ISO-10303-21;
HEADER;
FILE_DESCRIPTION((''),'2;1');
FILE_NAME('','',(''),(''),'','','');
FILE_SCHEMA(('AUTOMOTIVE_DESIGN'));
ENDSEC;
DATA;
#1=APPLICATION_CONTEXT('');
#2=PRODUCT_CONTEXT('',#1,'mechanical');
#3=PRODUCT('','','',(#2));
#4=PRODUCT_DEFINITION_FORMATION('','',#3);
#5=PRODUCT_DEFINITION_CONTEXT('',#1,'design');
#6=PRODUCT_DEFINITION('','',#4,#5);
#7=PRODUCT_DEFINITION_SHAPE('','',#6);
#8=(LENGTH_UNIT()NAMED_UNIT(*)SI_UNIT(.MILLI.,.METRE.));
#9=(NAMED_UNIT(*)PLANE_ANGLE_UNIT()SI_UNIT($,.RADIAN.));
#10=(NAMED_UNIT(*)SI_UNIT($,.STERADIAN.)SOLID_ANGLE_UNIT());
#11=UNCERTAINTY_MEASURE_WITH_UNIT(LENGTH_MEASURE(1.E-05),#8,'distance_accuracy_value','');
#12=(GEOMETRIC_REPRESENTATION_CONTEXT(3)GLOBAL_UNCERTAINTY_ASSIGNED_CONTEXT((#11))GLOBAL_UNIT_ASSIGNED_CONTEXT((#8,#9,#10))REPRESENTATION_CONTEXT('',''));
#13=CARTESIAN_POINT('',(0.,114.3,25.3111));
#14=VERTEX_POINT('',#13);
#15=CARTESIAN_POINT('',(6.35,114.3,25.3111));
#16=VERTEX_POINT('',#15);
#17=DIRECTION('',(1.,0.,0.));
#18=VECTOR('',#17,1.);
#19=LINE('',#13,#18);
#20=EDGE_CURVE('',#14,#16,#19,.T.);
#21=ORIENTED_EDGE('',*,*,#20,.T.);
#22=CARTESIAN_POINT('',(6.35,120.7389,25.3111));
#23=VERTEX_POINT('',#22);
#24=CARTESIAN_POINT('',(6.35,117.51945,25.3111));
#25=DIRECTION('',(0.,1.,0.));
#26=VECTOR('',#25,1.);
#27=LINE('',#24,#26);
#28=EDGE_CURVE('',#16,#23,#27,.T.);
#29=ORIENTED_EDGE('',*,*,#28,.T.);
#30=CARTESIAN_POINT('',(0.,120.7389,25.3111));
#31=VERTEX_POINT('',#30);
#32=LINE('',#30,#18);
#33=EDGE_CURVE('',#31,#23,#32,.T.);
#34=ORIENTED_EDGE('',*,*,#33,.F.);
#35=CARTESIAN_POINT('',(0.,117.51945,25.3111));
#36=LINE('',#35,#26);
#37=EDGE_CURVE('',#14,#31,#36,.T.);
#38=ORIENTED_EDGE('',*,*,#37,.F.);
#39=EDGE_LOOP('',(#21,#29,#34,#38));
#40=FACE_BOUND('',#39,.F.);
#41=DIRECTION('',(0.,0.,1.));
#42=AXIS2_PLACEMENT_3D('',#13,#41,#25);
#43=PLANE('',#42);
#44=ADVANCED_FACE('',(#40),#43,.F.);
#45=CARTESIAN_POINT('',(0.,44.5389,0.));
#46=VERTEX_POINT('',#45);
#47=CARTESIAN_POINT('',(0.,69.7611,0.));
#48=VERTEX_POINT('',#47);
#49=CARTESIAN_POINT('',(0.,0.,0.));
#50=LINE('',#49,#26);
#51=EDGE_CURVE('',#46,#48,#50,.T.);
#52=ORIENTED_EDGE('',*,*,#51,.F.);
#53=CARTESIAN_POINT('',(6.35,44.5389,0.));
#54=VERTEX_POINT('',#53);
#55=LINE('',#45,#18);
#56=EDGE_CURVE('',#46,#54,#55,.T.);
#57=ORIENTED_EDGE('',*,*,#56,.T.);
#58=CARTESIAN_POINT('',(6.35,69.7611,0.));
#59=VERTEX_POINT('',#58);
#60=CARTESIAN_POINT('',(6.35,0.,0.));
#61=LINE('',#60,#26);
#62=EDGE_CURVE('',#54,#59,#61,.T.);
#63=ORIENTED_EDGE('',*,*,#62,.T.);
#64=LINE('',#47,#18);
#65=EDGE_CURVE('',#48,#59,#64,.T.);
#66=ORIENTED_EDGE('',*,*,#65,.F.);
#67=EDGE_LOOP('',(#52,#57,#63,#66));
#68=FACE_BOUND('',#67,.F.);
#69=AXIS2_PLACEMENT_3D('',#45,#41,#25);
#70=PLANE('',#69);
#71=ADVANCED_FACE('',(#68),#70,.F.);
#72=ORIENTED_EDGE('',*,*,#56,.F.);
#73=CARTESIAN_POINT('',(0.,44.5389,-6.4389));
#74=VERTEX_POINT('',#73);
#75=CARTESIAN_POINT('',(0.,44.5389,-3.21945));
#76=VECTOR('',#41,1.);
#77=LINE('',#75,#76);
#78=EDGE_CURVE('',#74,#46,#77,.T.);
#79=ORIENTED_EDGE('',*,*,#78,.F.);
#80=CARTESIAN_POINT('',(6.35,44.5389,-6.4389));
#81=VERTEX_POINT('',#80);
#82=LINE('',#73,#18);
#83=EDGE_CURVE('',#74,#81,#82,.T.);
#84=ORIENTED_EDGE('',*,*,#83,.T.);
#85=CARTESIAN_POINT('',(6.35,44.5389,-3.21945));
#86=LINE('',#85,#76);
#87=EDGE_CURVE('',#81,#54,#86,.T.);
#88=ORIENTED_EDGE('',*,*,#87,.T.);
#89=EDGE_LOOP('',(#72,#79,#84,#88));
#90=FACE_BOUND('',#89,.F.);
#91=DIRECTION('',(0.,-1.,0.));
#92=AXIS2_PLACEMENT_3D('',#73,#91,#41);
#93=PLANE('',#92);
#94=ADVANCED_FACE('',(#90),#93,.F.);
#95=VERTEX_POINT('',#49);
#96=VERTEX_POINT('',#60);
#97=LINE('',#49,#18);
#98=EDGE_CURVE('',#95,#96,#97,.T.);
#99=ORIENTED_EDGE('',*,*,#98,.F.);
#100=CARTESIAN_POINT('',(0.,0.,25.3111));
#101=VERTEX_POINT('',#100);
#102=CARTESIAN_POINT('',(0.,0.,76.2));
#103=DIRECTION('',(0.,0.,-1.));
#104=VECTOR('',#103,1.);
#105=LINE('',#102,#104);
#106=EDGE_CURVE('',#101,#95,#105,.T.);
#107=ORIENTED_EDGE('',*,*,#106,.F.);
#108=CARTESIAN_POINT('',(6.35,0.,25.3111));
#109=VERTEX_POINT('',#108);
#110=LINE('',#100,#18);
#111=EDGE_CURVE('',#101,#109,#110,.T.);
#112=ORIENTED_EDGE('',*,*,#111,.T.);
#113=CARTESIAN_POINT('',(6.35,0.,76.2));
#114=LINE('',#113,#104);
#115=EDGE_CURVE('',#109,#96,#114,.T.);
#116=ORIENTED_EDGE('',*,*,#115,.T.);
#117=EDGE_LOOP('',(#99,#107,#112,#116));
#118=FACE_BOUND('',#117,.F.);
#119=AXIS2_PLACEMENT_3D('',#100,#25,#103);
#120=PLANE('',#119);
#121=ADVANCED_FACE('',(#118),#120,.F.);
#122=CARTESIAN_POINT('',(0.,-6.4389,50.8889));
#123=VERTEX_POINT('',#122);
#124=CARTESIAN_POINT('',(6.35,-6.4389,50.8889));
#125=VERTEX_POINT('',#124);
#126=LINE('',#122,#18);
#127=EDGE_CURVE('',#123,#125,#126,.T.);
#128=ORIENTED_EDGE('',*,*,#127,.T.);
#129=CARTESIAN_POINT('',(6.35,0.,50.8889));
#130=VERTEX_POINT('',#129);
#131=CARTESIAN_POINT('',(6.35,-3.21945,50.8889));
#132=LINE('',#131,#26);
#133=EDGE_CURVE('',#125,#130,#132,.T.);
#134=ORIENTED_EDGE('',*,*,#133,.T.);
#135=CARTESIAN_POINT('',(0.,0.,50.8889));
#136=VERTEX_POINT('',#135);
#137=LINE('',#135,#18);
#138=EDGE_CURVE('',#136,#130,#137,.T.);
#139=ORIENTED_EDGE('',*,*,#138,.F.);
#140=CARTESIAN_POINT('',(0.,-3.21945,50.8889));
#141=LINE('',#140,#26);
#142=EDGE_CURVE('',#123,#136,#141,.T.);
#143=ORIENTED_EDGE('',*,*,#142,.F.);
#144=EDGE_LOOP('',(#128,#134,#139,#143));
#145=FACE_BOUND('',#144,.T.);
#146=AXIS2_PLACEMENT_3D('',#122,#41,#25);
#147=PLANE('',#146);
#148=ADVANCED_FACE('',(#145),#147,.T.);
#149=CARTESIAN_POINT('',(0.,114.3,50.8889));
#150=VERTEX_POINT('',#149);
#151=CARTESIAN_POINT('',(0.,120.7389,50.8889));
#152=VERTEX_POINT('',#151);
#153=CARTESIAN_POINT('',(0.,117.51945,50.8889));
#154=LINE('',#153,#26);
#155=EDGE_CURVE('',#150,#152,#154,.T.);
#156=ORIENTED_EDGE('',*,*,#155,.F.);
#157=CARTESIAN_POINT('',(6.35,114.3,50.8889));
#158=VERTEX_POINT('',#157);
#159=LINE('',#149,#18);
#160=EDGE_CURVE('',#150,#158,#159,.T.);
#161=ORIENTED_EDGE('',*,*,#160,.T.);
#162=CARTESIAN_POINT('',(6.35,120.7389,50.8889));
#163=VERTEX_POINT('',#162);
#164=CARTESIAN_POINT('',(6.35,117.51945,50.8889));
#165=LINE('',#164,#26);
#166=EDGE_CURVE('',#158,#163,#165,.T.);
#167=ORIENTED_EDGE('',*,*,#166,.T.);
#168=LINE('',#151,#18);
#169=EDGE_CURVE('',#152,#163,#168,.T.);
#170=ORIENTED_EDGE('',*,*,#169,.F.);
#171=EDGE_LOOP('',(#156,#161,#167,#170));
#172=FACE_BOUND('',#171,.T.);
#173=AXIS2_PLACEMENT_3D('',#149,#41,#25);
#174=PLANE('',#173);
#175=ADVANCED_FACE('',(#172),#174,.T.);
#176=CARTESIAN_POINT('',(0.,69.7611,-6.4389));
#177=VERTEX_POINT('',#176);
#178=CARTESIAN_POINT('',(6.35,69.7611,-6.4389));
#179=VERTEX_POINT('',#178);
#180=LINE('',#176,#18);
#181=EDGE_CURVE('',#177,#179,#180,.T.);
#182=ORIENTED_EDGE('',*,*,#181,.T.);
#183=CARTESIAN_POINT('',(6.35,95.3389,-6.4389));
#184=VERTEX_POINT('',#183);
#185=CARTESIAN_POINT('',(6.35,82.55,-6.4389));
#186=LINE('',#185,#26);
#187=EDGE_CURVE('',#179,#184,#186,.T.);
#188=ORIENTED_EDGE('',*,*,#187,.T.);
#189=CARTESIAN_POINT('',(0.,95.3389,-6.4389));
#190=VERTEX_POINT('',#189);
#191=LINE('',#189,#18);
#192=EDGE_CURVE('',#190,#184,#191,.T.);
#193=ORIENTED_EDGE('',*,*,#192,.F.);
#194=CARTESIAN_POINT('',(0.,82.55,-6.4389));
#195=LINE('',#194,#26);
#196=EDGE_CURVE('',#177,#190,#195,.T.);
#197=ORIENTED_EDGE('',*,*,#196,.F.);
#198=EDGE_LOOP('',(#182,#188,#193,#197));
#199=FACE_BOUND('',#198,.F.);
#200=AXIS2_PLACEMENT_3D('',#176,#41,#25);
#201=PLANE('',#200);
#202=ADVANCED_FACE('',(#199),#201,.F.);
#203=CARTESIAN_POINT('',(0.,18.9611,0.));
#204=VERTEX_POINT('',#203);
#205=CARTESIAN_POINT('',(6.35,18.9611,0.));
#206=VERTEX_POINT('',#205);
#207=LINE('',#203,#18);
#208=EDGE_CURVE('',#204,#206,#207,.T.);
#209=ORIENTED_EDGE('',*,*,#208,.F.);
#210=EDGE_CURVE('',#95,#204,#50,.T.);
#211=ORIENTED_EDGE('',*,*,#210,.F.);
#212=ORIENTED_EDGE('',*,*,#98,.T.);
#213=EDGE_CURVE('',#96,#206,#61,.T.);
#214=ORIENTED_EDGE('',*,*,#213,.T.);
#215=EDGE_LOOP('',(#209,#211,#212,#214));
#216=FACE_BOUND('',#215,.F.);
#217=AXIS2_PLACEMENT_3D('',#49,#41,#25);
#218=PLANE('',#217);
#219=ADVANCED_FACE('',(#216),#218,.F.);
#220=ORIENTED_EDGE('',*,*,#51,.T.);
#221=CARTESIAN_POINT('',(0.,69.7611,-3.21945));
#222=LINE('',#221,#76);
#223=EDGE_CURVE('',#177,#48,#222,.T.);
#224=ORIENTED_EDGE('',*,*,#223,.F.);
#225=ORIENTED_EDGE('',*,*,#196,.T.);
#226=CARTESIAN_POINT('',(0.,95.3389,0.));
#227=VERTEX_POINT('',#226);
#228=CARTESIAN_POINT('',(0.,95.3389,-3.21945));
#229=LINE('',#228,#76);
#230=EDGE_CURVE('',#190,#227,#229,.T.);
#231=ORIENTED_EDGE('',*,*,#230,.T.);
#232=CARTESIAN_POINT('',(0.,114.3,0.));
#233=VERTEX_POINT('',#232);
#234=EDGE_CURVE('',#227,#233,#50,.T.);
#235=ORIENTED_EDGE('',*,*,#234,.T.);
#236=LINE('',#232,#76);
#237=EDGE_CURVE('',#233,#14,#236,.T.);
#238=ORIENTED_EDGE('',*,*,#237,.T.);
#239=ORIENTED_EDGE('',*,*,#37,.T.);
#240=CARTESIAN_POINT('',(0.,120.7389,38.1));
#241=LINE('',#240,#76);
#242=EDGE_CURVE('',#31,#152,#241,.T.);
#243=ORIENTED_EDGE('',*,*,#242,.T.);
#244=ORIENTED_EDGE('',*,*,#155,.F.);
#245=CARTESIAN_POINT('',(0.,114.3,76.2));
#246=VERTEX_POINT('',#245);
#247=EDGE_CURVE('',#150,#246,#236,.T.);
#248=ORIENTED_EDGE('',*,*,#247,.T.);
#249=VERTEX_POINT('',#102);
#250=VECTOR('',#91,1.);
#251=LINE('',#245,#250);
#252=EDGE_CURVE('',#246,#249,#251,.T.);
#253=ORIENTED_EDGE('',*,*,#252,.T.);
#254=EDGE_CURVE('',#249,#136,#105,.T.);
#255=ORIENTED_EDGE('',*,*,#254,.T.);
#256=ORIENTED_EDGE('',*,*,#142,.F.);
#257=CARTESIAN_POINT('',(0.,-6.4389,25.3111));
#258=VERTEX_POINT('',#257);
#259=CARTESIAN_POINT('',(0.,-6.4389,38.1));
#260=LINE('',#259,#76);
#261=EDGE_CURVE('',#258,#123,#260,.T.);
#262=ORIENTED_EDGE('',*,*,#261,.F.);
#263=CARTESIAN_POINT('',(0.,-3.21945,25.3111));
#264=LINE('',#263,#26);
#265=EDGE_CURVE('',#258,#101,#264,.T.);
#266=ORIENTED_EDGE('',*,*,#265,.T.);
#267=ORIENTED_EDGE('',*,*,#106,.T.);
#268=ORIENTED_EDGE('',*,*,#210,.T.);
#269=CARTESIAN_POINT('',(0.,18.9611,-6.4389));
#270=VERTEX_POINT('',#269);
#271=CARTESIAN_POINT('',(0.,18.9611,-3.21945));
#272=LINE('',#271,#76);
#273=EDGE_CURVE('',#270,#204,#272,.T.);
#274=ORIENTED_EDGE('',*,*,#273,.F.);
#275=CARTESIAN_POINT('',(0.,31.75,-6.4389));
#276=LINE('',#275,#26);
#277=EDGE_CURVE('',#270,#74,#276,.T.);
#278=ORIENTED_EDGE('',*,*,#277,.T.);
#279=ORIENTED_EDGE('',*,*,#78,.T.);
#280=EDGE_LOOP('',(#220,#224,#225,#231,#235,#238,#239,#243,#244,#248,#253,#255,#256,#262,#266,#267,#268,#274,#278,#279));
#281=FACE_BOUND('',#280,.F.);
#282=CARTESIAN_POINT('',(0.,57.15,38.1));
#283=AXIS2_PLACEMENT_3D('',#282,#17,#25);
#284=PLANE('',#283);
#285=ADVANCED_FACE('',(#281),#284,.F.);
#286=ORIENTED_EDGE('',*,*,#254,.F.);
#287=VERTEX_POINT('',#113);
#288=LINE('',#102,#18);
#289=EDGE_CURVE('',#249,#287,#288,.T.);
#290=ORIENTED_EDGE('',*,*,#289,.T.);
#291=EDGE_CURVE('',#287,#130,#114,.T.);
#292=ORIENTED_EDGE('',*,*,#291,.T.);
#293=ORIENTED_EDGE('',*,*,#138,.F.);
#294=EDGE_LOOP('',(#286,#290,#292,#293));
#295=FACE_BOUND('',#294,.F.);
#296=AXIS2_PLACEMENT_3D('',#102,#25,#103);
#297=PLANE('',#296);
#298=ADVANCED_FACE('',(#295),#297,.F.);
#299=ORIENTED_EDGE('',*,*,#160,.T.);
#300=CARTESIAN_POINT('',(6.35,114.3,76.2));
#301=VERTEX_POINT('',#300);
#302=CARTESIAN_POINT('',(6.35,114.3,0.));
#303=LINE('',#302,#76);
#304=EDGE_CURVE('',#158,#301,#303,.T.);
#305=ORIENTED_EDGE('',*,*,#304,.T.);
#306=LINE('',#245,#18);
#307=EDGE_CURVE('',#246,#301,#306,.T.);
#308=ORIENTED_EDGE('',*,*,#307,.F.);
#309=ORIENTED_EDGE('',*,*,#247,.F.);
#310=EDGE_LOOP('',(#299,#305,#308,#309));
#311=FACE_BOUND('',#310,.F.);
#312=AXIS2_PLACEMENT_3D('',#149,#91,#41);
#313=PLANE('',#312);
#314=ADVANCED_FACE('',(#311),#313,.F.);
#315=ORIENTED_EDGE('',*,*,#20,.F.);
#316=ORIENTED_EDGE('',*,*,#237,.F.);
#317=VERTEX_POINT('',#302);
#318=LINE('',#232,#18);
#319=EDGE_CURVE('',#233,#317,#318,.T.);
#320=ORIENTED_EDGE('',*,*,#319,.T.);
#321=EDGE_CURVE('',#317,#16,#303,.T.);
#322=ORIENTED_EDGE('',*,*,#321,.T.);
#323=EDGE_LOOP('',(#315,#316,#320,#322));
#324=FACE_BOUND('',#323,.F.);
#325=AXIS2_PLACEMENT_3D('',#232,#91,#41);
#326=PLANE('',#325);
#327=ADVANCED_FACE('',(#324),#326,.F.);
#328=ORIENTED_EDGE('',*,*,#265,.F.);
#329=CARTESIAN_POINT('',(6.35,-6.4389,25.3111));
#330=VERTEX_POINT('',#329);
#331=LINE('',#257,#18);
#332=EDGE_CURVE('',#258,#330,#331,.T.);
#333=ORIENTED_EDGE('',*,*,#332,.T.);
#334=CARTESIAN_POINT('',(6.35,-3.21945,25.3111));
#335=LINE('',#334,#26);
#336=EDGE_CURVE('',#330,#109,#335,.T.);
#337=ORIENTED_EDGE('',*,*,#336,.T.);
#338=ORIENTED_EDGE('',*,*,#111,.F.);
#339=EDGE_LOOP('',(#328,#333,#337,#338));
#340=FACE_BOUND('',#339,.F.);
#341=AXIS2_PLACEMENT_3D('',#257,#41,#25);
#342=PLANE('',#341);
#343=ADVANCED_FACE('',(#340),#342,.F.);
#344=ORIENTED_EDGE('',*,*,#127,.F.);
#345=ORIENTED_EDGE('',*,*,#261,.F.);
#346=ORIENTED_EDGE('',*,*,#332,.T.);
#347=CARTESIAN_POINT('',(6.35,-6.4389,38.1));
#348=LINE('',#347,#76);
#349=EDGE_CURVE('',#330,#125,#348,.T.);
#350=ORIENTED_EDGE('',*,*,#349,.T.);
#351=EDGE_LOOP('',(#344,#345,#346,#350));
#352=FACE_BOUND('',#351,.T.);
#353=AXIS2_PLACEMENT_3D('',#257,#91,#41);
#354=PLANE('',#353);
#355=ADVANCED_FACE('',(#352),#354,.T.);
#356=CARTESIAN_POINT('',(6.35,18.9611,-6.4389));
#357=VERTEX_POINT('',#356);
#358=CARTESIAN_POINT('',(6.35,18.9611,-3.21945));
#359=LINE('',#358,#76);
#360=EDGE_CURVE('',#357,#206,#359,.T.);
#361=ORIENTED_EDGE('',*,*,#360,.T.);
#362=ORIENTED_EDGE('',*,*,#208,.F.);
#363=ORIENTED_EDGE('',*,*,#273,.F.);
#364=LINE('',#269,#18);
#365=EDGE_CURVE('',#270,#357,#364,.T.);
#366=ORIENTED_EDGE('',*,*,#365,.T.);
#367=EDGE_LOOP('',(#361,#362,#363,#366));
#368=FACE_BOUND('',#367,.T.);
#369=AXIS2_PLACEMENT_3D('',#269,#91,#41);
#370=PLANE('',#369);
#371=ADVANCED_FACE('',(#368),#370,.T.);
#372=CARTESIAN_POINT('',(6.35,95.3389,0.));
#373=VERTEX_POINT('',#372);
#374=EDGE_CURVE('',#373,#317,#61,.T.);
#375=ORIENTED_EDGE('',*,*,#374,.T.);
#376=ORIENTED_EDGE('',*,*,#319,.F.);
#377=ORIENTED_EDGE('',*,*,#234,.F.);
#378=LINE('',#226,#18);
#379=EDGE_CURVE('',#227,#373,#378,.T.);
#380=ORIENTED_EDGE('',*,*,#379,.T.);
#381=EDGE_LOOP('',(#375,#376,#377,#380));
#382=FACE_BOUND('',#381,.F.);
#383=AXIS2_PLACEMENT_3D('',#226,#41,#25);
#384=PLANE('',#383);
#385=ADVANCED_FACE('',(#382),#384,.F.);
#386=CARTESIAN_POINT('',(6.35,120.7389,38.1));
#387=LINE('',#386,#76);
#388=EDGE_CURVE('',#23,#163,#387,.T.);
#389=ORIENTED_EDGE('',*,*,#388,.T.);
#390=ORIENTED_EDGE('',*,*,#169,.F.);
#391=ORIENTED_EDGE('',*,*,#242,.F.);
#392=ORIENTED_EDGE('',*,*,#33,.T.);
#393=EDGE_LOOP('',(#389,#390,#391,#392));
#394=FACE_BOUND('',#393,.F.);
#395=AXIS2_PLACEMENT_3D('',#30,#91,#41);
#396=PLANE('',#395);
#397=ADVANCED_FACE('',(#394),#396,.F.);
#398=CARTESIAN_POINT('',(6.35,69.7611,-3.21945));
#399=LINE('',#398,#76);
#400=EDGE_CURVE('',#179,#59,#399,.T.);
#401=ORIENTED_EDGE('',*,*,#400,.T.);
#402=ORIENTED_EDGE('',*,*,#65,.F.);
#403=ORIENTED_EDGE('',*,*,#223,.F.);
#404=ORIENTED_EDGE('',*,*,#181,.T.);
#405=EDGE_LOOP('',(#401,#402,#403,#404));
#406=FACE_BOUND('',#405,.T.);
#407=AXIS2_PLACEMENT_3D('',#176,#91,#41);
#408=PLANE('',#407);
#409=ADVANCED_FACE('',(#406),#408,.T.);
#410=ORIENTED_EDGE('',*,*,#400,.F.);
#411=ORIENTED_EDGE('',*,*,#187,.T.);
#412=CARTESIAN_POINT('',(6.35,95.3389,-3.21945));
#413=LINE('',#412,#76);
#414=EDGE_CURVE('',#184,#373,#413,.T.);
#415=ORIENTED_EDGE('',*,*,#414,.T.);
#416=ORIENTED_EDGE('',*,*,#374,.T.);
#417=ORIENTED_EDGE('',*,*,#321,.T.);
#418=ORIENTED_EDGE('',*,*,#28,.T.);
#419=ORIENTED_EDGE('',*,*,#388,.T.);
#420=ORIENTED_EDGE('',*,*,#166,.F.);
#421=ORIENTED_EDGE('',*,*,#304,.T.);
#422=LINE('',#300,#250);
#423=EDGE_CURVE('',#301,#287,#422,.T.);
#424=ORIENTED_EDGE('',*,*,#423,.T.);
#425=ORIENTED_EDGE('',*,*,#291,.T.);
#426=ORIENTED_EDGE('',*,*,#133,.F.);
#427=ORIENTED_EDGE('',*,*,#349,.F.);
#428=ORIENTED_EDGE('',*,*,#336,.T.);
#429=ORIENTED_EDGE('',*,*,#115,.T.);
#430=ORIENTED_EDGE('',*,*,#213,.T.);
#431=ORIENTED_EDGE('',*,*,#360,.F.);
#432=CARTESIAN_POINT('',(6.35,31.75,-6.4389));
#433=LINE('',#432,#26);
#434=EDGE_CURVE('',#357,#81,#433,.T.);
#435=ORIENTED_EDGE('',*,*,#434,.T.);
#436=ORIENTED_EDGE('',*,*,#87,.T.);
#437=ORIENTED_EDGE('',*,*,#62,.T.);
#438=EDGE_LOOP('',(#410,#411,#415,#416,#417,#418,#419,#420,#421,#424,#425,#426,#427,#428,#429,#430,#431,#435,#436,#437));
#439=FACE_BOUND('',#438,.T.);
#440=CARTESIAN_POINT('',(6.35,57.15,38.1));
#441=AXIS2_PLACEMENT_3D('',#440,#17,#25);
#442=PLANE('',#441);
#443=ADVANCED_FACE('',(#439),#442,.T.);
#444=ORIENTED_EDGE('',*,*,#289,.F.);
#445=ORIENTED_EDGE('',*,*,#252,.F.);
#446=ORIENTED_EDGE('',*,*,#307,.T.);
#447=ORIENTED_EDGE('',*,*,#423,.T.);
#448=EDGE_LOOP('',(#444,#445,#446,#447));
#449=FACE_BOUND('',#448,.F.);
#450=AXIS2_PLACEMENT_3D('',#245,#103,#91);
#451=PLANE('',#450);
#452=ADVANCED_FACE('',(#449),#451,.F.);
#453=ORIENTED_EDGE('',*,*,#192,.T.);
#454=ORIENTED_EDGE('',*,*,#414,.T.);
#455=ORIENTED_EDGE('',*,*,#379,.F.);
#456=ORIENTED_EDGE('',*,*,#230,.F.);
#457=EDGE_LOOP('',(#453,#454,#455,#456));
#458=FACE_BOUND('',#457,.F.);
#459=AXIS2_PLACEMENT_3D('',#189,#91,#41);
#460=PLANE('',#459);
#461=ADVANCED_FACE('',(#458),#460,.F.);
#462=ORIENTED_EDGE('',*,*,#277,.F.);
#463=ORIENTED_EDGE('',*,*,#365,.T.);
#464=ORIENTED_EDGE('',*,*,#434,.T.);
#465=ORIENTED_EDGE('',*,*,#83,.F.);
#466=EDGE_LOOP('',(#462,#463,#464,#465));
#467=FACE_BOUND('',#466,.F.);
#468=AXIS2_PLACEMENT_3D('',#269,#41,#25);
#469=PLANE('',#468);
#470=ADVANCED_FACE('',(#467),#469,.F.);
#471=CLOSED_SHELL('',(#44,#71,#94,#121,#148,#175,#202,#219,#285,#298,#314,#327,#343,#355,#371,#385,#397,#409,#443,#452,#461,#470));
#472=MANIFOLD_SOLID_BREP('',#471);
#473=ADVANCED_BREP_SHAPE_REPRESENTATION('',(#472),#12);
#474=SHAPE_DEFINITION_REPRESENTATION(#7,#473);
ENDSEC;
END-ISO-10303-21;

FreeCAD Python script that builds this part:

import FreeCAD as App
import Part
import Sketcher

V = App.Vector
Q = App.Units.Quantity


def add_polygon(sketch, points):
    """Adds a closed chain of lines whose ends are joined by coincident constraints."""
    first, n = sketch.GeometryCount, len(points)
    for a, b in zip(points, points[1:] + points[:1]):
        sketch.addGeometry(Part.LineSegment(App.Vector(*a, 0), App.Vector(*b, 0)), False)
    for i in range(n):
        sketch.addConstraint(Sketcher.Constraint("Coincident", first + i, 2, first + (i + 1) % n, 1))

doc = App.newDocument("Part")
params = doc.addObject("Spreadsheet::Sheet", "Params")
for row, (alias, value) in enumerate([
    ("sketch1_width", "4.5 in"),
    ("sketch1_width2", "1.007 in"),
    ("pad1_length", "0.25 in"),
], start=1):
    params.set(f"A{row}", alias)
    params.set(f"B{row}", "=" + value)
    params.setAlias(f"B{row}", alias)

body = doc.addObject("PartDesign::Body", "Body")

# Sketch on YZ plane
sketch1 = body.newObject("Sketcher::SketchObject", "Sketch")
sketch1.AttachmentSupport = (doc.getObject("YZ_Plane"), [""])
sketch1.MapMode = "FlatFace"
add_polygon(sketch1, [(0, 0), (19, 0), (19, -6), (45, -6), (45, 0), (70, 0), (70, -6), (95, -6), (95, 0), (114, 0), (114, 25), (121, 25), (121, 51), (114, 51), (114, 76), (0, 76), (0, 51), (-6, 51), (-6, 25), (0, 25)])  # lines 0-19
sketch1.addConstraint([
    Sketcher.Constraint("Horizontal", 0),
    Sketcher.Constraint("Vertical", 1),
    Sketcher.Constraint("Horizontal", 2),
    Sketcher.Constraint("Vertical", 3),
    Sketcher.Constraint("Horizontal", 4),
    Sketcher.Constraint("Vertical", 5),
    Sketcher.Constraint("Horizontal", 6),
    Sketcher.Constraint("Vertical", 7),
    Sketcher.Constraint("Horizontal", 8),
    Sketcher.Constraint("Vertical", 9),
    Sketcher.Constraint("Horizontal", 10),
    Sketcher.Constraint("Vertical", 11),
    Sketcher.Constraint("Horizontal", 12),
    Sketcher.Constraint("Vertical", 13),
    Sketcher.Constraint("Horizontal", 14),
    Sketcher.Constraint("Vertical", 15),
    Sketcher.Constraint("Horizontal", 16),
    Sketcher.Constraint("Vertical", 17),
    Sketcher.Constraint("Horizontal", 18),
    Sketcher.Constraint("Vertical", 19),
    Sketcher.Constraint("Coincident", 19, 2, -1, 1),
    Sketcher.Constraint("PointOnObject", 3, 2, -1),
    Sketcher.Constraint("PointOnObject", 7, 2, -1),
    Sketcher.Constraint("PointOnObject", 14, 2, -2),
    Sketcher.Constraint("Horizontal", 2, 2, 5, 2),
    Sketcher.Constraint("Horizontal", 12, 2, 15, 2),
    Sketcher.Constraint("Horizontal", 10, 2, 17, 2),
    Sketcher.Constraint("Vertical", 9, 2, 12, 2),
    Sketcher.Constraint("Equal", 2, 6),
    Sketcher.Constraint("Equal", 0, 8),
    Sketcher.Constraint("Equal", 12, 16),
    Sketcher.Constraint("Equal", 18, 1),
    Sketcher.Constraint("Equal", 6, 11),
    Sketcher.Constraint("Equal", 9, 13),
    Sketcher.Constraint("DistanceX", 14, 2, 14, 1, Q("4.5 in")),
    Sketcher.Constraint("DistanceY", -1, 1, 13, 2, Q("3 in")),
    Sketcher.Constraint("DistanceX", 0, 2, 4, 2, Q("2 in")),
    Sketcher.Constraint("DistanceX", 7, 2, 10, 2, Q("1 in")),
    Sketcher.Constraint("DistanceX", 2, 1, 2, 2, Q("1.007 in")),
])
sketch1.setExpression("Constraints[54]", "Params.sketch1_width")
sketch1.setExpression("Constraints[58]", "Params.sketch1_width2")
pad1 = body.newObject("PartDesign::Pad", "Pad")
pad1.Profile = sketch1
pad1.setExpression("Length", "Params.pad1_length")

doc.recompute()
